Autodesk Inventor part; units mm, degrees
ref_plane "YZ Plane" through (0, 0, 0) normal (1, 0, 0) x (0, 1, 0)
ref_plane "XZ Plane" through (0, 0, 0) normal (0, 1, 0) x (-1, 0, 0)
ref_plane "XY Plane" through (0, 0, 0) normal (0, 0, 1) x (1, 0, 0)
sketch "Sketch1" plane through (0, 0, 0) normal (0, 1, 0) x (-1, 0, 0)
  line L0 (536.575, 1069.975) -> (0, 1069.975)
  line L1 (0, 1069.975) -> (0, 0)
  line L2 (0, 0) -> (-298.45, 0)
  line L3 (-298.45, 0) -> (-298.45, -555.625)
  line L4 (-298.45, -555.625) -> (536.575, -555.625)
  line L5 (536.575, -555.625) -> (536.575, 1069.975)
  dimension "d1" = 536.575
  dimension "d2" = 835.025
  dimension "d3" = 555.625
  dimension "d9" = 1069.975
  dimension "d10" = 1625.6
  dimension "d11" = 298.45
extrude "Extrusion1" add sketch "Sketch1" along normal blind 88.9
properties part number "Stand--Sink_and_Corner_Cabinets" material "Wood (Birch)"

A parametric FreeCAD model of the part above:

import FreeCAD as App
import Part
import Sketcher
from FreeCAD import Vector
Q = App.Units.Quantity

doc = App.newDocument("Part")
params = doc.addObject("Spreadsheet::Sheet", "Params")
for row, (alias, value) in enumerate([
    ("sketch1_height", "64 in"),
    ("sketch1_width", "11.75 in"),
    ("sketch1_width2", "21.125 in"),
    ("sketch1_height2", "42.125 in"),
    ("pad1_length", "3.5 in"),
], start=1):
    params.set(f"A{row}", alias)
    params.set(f"B{row}", "=" + value)
    params.setAlias(f"B{row}", alias)

body = doc.addObject("PartDesign::Body", "Body")

sketch1 = body.newObject("Sketcher::SketchObject", "Sketch")
sketch1.AttachmentSupport = (doc.getObject("XZ_Plane"), [""])
sketch1.MapMode = "FlatFace"
sketch1.addGeometry([
    Part.LineSegment(Vector(-536.575, -555.625, 0), Vector(-536.575, 1069.975, 0)),
    Part.LineSegment(Vector(-536.575, 1069.975, 0), Vector(0, 1069.975, 0)),
    Part.LineSegment(Vector(0, 1069.975, 0), Vector(0, 0, 0)),
    Part.LineSegment(Vector(0, 0, 0), Vector(298.45, 0, 0)),
    Part.LineSegment(Vector(298.45, 0, 0), Vector(298.45, -555.625, 0)),
    Part.LineSegment(Vector(298.45, -555.625, 0), Vector(-536.575, -555.625, 0)),
], False)
sketch1.addConstraint([
    Sketcher.Constraint("Coincident", 0, 2, 1, 1),
    Sketcher.Constraint("Coincident", 1, 2, 2, 1),
    Sketcher.Constraint("Coincident", 2, 2, 3, 1),
    Sketcher.Constraint("Coincident", 3, 2, 4, 1),
    Sketcher.Constraint("Coincident", 4, 2, 5, 1),
    Sketcher.Constraint("Coincident", 5, 2, 0, 1),
    Sketcher.Constraint("Vertical", 0),
    Sketcher.Constraint("Horizontal", 1),
    Sketcher.Constraint("Vertical", 2),
    Sketcher.Constraint("Horizontal", 3),
    Sketcher.Constraint("Vertical", 4),
    Sketcher.Constraint("Horizontal", 5),
    Sketcher.Constraint("Coincident", 2, 2, -1, 1),
    Sketcher.Constraint("DistanceY", 0, 1, 0, 2, Q("64 in")),
    Sketcher.Constraint("DistanceX", 3, 1, 3, 2, Q("11.75 in")),
    Sketcher.Constraint("DistanceX", 1, 1, 1, 2, Q("21.125 in")),
    Sketcher.Constraint("DistanceY", 2, 2, 2, 1, Q("42.125 in")),
])
sketch1.setExpression("Constraints[13]", "Params.sketch1_height")
sketch1.setExpression("Constraints[14]", "Params.sketch1_width")
sketch1.setExpression("Constraints[15]", "Params.sketch1_width2")
sketch1.setExpression("Constraints[16]", "Params.sketch1_height2")
pad1 = body.newObject("PartDesign::Pad", "Pad")
pad1.Profile = sketch1
pad1.setExpression("Length", "Params.pad1_length")
pad1.Reversed = True

doc.recompute()
